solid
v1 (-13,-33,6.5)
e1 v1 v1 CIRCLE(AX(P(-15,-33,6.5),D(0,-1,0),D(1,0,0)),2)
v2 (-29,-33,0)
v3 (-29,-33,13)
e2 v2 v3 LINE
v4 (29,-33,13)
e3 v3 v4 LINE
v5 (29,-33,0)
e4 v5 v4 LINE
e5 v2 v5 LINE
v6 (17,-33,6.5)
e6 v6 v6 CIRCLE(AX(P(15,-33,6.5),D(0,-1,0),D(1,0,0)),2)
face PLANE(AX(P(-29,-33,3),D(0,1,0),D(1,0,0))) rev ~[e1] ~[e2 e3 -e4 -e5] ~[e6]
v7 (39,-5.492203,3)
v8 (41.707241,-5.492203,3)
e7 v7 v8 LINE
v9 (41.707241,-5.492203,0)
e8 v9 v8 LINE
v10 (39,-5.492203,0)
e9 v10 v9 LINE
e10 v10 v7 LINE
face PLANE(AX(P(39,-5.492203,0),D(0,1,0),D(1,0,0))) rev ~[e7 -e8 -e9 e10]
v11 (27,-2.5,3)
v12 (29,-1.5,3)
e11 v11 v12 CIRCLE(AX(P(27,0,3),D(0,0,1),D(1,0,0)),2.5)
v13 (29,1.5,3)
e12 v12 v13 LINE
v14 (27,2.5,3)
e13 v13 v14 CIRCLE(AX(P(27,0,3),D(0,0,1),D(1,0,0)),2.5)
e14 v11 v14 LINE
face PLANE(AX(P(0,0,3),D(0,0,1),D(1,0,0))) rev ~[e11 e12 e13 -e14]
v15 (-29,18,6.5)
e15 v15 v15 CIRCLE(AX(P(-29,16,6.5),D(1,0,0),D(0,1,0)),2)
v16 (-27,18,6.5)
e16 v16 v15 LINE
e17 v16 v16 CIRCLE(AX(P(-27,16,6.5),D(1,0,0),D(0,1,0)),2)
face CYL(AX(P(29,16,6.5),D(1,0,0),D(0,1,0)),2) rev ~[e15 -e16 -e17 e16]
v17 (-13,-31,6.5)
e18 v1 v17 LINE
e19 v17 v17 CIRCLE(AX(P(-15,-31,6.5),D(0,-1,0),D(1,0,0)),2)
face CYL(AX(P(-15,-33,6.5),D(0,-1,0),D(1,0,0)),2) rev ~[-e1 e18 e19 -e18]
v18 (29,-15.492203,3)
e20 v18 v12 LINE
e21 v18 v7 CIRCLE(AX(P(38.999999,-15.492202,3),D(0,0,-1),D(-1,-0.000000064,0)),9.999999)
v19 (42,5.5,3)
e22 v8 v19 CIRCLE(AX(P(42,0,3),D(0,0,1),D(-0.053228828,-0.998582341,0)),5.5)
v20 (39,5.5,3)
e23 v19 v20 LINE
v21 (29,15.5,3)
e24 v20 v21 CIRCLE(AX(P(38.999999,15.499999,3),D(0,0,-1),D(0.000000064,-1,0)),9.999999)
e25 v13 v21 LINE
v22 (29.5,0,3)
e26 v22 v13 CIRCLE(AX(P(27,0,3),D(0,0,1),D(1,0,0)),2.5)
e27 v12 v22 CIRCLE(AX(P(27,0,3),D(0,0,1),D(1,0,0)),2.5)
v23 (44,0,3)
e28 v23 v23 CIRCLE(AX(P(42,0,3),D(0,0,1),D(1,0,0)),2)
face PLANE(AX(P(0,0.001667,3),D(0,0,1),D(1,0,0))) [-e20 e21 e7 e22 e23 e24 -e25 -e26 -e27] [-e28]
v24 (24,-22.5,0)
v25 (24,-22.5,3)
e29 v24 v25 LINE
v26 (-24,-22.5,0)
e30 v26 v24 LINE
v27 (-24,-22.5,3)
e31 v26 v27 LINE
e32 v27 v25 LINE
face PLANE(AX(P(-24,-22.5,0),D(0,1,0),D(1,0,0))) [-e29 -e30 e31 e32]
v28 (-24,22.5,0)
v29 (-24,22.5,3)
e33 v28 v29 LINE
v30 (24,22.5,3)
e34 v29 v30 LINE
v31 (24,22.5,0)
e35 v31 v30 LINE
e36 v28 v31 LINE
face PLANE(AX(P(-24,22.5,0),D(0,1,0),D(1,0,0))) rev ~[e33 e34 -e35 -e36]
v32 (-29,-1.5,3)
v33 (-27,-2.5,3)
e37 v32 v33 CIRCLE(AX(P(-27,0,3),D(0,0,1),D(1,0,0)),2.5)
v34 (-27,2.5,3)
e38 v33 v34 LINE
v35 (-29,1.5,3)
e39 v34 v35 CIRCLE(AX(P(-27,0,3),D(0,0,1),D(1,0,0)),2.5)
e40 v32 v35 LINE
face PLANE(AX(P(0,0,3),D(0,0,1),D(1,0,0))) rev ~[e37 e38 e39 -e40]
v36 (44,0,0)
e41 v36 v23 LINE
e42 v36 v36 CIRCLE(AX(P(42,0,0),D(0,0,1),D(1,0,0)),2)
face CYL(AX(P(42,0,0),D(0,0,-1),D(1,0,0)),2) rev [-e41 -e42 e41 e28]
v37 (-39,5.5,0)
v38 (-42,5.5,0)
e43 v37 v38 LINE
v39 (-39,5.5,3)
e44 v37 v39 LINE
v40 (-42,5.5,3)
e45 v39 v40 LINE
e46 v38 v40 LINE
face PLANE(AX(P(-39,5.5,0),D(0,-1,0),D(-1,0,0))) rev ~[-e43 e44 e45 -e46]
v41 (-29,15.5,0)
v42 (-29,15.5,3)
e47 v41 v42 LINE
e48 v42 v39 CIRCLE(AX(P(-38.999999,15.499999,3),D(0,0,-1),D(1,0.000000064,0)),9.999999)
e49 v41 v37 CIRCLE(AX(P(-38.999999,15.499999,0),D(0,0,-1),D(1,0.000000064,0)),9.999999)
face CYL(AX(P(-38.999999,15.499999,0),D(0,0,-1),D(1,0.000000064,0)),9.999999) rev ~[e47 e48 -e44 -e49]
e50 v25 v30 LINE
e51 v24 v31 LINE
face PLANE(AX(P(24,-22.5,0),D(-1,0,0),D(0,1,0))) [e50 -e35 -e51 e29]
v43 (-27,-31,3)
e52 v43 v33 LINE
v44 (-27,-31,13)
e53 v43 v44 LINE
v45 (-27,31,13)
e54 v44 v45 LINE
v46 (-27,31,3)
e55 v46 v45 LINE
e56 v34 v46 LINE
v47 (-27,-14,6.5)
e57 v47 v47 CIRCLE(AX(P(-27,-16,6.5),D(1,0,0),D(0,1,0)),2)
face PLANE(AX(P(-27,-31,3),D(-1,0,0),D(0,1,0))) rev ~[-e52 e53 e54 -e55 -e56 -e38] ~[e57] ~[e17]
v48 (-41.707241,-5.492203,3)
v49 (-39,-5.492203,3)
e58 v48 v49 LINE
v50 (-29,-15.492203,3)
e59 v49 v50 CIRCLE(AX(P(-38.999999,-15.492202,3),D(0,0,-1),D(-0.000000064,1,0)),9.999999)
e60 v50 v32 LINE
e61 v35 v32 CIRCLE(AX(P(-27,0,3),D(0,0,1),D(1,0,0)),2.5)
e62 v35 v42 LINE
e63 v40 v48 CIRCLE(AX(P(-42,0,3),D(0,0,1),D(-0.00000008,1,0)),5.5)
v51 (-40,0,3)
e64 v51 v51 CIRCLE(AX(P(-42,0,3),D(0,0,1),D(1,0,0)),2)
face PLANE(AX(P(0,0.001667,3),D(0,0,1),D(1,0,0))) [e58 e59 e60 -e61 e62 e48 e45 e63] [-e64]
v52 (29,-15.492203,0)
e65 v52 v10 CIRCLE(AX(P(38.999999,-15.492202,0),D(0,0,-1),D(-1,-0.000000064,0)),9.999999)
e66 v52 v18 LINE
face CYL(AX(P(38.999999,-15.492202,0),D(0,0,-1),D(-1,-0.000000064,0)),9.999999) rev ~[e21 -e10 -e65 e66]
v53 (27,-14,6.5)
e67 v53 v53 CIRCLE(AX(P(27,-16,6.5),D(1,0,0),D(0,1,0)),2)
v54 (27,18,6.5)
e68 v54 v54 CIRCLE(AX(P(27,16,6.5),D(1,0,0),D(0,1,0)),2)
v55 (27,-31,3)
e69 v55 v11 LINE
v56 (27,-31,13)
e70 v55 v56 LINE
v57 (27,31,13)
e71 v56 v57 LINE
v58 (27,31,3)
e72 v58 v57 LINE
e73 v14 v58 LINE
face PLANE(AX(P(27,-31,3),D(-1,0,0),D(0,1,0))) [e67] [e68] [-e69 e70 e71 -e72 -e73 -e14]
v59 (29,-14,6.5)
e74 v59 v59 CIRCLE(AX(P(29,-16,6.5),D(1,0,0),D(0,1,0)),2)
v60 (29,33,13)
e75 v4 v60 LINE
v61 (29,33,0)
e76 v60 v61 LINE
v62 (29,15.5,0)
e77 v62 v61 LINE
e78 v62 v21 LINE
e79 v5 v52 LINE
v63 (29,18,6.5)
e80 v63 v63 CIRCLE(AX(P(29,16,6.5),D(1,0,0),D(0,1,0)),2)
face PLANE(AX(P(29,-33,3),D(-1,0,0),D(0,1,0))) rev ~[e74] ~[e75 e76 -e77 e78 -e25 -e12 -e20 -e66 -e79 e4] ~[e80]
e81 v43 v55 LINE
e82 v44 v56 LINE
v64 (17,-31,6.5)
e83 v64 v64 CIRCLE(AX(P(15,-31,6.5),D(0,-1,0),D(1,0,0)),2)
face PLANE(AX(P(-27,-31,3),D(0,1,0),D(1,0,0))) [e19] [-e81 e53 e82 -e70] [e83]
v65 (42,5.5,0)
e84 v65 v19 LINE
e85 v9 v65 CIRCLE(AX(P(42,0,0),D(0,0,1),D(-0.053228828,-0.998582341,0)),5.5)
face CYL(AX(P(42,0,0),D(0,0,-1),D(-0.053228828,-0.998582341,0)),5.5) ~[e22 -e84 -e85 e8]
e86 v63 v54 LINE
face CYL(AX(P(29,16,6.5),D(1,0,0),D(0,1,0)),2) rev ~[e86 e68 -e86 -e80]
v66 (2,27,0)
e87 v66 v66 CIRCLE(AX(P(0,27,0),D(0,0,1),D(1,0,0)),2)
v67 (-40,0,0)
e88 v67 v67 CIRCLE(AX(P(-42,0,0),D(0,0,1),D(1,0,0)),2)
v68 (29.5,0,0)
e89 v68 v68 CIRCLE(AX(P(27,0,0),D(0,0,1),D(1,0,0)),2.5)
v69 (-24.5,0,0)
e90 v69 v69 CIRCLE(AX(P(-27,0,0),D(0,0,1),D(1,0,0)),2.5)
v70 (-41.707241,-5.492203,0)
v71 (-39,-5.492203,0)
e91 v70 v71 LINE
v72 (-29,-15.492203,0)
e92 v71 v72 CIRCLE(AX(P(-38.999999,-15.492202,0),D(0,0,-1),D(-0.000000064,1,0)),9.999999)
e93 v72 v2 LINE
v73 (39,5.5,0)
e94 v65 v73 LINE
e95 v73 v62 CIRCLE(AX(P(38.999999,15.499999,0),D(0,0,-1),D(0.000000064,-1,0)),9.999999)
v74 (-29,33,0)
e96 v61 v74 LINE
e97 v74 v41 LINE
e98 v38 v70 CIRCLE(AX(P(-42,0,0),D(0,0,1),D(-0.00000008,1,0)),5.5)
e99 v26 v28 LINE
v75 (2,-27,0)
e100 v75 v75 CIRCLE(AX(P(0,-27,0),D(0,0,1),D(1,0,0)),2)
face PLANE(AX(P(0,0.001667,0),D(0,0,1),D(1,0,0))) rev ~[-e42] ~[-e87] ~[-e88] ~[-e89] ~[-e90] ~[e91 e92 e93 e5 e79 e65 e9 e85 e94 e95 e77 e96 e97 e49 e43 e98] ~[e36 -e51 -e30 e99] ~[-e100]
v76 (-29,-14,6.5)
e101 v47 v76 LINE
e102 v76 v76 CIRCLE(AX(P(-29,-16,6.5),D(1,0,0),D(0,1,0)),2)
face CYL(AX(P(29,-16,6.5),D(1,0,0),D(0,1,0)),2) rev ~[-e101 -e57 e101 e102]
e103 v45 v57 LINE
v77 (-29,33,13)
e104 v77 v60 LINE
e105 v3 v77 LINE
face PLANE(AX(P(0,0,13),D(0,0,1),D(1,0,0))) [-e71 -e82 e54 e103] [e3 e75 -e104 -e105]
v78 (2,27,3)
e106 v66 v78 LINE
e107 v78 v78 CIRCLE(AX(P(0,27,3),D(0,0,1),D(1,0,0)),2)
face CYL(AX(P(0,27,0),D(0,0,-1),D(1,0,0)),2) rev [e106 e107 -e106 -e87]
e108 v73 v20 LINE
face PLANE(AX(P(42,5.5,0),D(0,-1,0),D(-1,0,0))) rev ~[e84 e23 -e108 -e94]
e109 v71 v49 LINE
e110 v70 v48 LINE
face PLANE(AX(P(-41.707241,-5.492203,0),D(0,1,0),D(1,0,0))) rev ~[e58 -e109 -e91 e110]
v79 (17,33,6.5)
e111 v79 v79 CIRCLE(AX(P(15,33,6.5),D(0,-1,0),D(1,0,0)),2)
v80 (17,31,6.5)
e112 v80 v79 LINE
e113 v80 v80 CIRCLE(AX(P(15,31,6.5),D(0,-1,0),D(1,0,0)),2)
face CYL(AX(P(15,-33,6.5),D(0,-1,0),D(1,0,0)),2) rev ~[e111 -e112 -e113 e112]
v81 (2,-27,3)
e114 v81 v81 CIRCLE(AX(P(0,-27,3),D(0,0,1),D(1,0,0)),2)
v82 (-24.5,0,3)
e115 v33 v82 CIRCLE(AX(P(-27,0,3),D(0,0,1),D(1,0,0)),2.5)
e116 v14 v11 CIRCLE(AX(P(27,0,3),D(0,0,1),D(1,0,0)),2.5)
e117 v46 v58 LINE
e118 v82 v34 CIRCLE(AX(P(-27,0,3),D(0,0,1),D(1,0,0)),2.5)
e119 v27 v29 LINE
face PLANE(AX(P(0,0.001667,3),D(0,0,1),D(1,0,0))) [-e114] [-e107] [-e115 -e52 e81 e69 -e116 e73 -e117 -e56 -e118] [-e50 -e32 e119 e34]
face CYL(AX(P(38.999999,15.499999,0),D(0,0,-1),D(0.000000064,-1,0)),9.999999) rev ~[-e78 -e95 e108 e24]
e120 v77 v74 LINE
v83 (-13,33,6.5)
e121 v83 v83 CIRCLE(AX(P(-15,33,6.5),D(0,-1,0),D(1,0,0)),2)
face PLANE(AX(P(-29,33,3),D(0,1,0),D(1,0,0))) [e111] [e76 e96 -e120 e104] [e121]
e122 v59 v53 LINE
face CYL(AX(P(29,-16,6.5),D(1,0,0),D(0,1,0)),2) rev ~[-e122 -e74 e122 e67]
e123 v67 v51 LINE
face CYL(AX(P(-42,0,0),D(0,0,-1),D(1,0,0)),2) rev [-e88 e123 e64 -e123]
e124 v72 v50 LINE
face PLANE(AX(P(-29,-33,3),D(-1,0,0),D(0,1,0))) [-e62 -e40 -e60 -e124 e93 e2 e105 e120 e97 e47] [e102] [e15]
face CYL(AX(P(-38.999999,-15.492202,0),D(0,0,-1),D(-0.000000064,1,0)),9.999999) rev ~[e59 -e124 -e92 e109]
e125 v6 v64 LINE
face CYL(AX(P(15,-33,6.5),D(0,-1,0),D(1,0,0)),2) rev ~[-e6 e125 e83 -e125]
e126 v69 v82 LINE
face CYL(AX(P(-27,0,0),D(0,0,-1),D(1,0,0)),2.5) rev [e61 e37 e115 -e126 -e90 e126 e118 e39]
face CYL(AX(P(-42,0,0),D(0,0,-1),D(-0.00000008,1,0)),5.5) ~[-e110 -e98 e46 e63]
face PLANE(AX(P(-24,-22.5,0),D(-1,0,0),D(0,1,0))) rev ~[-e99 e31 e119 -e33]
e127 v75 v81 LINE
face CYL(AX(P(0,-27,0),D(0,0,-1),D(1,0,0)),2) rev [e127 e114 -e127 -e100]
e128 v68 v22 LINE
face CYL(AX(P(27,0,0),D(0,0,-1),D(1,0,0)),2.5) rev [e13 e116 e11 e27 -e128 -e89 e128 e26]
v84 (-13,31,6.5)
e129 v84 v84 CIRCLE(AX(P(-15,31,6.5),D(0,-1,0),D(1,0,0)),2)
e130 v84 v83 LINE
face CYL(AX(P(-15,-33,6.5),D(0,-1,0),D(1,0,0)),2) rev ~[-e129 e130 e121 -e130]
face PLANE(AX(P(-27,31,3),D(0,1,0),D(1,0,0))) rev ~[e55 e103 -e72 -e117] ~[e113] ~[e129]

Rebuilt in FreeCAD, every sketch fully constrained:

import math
import FreeCAD as App
import Part
import Sketcher
Q = App.Units.Quantity

doc = App.newDocument("Part")
body = doc.addObject("PartDesign::Body", "Body")

sketch1 = doc.addObject("Sketcher::SketchObject", "Sketch")
body.addObject(sketch1)
sketch1.AttachmentSupport = (doc.XY_Plane, [""])
sketch1.MapMode = "FlatFace"
sketch1.addGeometry([
    Part.LineSegment(App.Vector(-29, -33, 0), App.Vector(29, -33, 0)),
    Part.LineSegment(App.Vector(29, -33, 0), App.Vector(29, -15.5, 0)),
    Part.ArcOfCircle(Part.Circle(App.Vector(39, -15.5, 0), App.Vector(0, 0, 1), 10), math.radians(90), math.radians(180)),
    Part.LineSegment(App.Vector(39, -5.5, 0), App.Vector(41.7, -5.5, 0)),
    Part.ArcOfCircle(Part.Circle(App.Vector(42, 0, 0), App.Vector(0, 0, 1), 5.5), math.radians(-93), math.radians(90)),
    Part.LineSegment(App.Vector(42, 5.5, 0), App.Vector(39, 5.5, 0)),
    Part.ArcOfCircle(Part.Circle(App.Vector(39, 15.5, 0), App.Vector(0, 0, 1), 10), math.radians(180), math.radians(270)),
    Part.LineSegment(App.Vector(29, 15.5, 0), App.Vector(29, 33, 0)),
    Part.LineSegment(App.Vector(29, 33, 0), App.Vector(-29, 33, 0)),
    Part.LineSegment(App.Vector(-29, 33, 0), App.Vector(-29, 15.5, 0)),
    Part.ArcOfCircle(Part.Circle(App.Vector(-39, 15.5, 0), App.Vector(0, 0, 1), 10), math.radians(-90), math.radians(0)),
    Part.LineSegment(App.Vector(-39, 5.5, 0), App.Vector(-42, 5.5, 0)),
    Part.ArcOfCircle(Part.Circle(App.Vector(-42, 0, 0), App.Vector(0, 0, 1), 5.5), math.radians(90), math.radians(273)),
    Part.LineSegment(App.Vector(-41.7, -5.5, 0), App.Vector(-39, -5.5, 0)),
    Part.ArcOfCircle(Part.Circle(App.Vector(-39, -15.5, 0), App.Vector(0, 0, 1), 10), math.radians(0), math.radians(90)),
    Part.LineSegment(App.Vector(-29, -15.5, 0), App.Vector(-29, -33, 0)),
    Part.Circle(App.Vector(0, -27, 0), App.Vector(0, 0, 1), 2),
    Part.Circle(App.Vector(-42, 0, 0), App.Vector(0, 0, 1), 2),
    Part.Circle(App.Vector(-27, 0, 0), App.Vector(0, 0, 1), 2.5),
    Part.LineSegment(App.Vector(24, -22.5, 0), App.Vector(-24, -22.5, 0)),
    Part.LineSegment(App.Vector(-24, -22.5, 0), App.Vector(-24, 22.5, 0)),
    Part.LineSegment(App.Vector(-24, 22.5, 0), App.Vector(24, 22.5, 0)),
    Part.LineSegment(App.Vector(24, 22.5, 0), App.Vector(24, -22.5, 0)),
    Part.Circle(App.Vector(27, 0, 0), App.Vector(0, 0, 1), 2.5),
    Part.Circle(App.Vector(42, 0, 0), App.Vector(0, 0, 1), 2),
    Part.Circle(App.Vector(0, 27, 0), App.Vector(0, 0, 1), 2),
], False)
sketch1.addConstraint([
    Sketcher.Constraint("Coincident", 0, 2, 1, 1),
    Sketcher.Constraint("Tangent", 1, 2, 2, 2),
    Sketcher.Constraint("Tangent", 2, 1, 3, 1),
    Sketcher.Constraint("Coincident", 3, 2, 4, 1),
    Sketcher.Constraint("Tangent", 4, 2, 5, 1),
    Sketcher.Constraint("Tangent", 5, 2, 6, 2),
    Sketcher.Constraint("Tangent", 6, 1, 7, 1),
    Sketcher.Constraint("Coincident", 7, 2, 8, 1),
    Sketcher.Constraint("Coincident", 8, 2, 9, 1),
    Sketcher.Constraint("Tangent", 9, 2, 10, 2),
    Sketcher.Constraint("Tangent", 10, 1, 11, 1),
    Sketcher.Constraint("Tangent", 11, 2, 12, 1),
    Sketcher.Constraint("Coincident", 12, 2, 13, 1),
    Sketcher.Constraint("Tangent", 13, 2, 14, 2),
    Sketcher.Constraint("Tangent", 14, 1, 15, 1),
    Sketcher.Constraint("Coincident", 15, 2, 0, 1),
    Sketcher.Constraint("Coincident", 19, 2, 20, 1),
    Sketcher.Constraint("Coincident", 20, 2, 21, 1),
    Sketcher.Constraint("Coincident", 21, 2, 22, 1),
    Sketcher.Constraint("Coincident", 22, 2, 19, 1),
    Sketcher.Constraint("Horizontal", 0),
    Sketcher.Constraint("Vertical", 1),
    Sketcher.Constraint("Horizontal", 3),
    Sketcher.Constraint("Horizontal", 5),
    Sketcher.Constraint("Vertical", 7),
    Sketcher.Constraint("Horizontal", 8),
    Sketcher.Constraint("Vertical", 9),
    Sketcher.Constraint("Horizontal", 11),
    Sketcher.Constraint("Horizontal", 13),
    Sketcher.Constraint("Vertical", 15),
    Sketcher.Constraint("Horizontal", 19),
    Sketcher.Constraint("Vertical", 20),
    Sketcher.Constraint("Horizontal", 21),
    Sketcher.Constraint("Vertical", 22),
    Sketcher.Constraint("Coincident", 17, 3, 12, 3),
    Sketcher.Constraint("Coincident", 24, 3, 4, 3),
    Sketcher.Constraint("Equal", 2, 6),
    Sketcher.Constraint("Equal", 6, 10),
    Sketcher.Constraint("Equal", 4, 12),
    Sketcher.Constraint("Equal", 10, 14),
    Sketcher.Constraint("Equal", 16, 17),
    Sketcher.Constraint("Equal", 18, 23),
    Sketcher.Constraint("Equal", 17, 24),
    Sketcher.Constraint("Equal", 24, 25),
    Sketcher.Constraint("Symmetric", 4, 3, 12, 3, -1, 1),
    Sketcher.Constraint("Symmetric", 18, 3, 23, 3, -1, 1),
    Sketcher.Constraint("Symmetric", 16, 3, 25, 3, -1, 1),
    Sketcher.Constraint("Symmetric", 0, 2, 8, 2, -1, 1),
    Sketcher.Constraint("Symmetric", 19, 2, 21, 2, -1, 1),
    Sketcher.Constraint("Symmetric", 6, 3, 10, 3, -2),
    Sketcher.Constraint("Symmetric", 2, 3, 14, 3, -2),
    Sketcher.Constraint("PointOnObject", 16, 3, -2),
    Sketcher.Constraint("PointOnObject", 18, 3, -1),
    Sketcher.Constraint("Diameter", 16, Q("4 mm")),
    Sketcher.Constraint("Diameter", 18, Q("5 mm")),
    Sketcher.Constraint("Radius", 2, Q("9.999999 mm")),
    Sketcher.Constraint("Radius", 4, Q("5.5 mm")),
    Sketcher.Constraint("DistanceX", 0, 1, 0, 2, Q("58 mm")),
    Sketcher.Constraint("DistanceX", 5, 2, 5, 1, Q("3 mm")),
    Sketcher.Constraint("DistanceX", 19, 2, 19, 1, Q("48 mm")),
    Sketcher.Constraint("DistanceY", 20, 1, 20, 2, Q("45 mm")),
    Sketcher.Constraint("DistanceY", 7, 1, 7, 2, Q("17.5 mm")),
    Sketcher.Constraint("DistanceY", 16, 3, -1, 1, Q("27 mm")),
    Sketcher.Constraint("DistanceX", 18, 3, -1, 1, Q("27 mm")),
    Sketcher.Constraint("DistanceX", 3, 1, 3, 2, Q("2.707241 mm")),
])
pad1 = doc.addObject("PartDesign::Pad", "Pad")
body.addObject(pad1)
pad1.Profile = sketch1
pad1.Length = 3

sketch2 = doc.addObject("Sketcher::SketchObject", "Sketch001")
body.addObject(sketch2)
sketch2.AttachmentSupport = (doc.XY_Plane, [""])
sketch2.MapMode = "FlatFace"
sketch2.AttachmentOffset = App.Placement(App.Vector(0, 0, 3), App.Rotation())
sketch2.addGeometry([
    Part.LineSegment(App.Vector(-29, 33, 0), App.Vector(-29, -33, 0)),
    Part.LineSegment(App.Vector(-29, -33, 0), App.Vector(29, -33, 0)),
    Part.LineSegment(App.Vector(29, -33, 0), App.Vector(29, 33, 0)),
    Part.LineSegment(App.Vector(29, 33, 0), App.Vector(-29, 33, 0)),
    Part.LineSegment(App.Vector(27, -31, 0), App.Vector(-27, -31, 0)),
    Part.LineSegment(App.Vector(-27, -31, 0), App.Vector(-27, 31, 0)),
    Part.LineSegment(App.Vector(-27, 31, 0), App.Vector(27, 31, 0)),
    Part.LineSegment(App.Vector(27, 31, 0), App.Vector(27, -31, 0)),
], False)
sketch2.addConstraint([
    Sketcher.Constraint("Coincident", 0, 2, 1, 1),
    Sketcher.Constraint("Coincident", 1, 2, 2, 1),
    Sketcher.Constraint("Coincident", 2, 2, 3, 1),
    Sketcher.Constraint("Coincident", 3, 2, 0, 1),
    Sketcher.Constraint("Coincident", 4, 2, 5, 1),
    Sketcher.Constraint("Coincident", 5, 2, 6, 1),
    Sketcher.Constraint("Coincident", 6, 2, 7, 1),
    Sketcher.Constraint("Coincident", 7, 2, 4, 1),
    Sketcher.Constraint("Vertical", 0),
    Sketcher.Constraint("Horizontal", 1),
    Sketcher.Constraint("Vertical", 2),
    Sketcher.Constraint("Horizontal", 3),
    Sketcher.Constraint("Horizontal", 4),
    Sketcher.Constraint("Vertical", 5),
    Sketcher.Constraint("Horizontal", 6),
    Sketcher.Constraint("Vertical", 7),
    Sketcher.Constraint("Symmetric", 0, 2, 2, 2, -1, 1),
    Sketcher.Constraint("Symmetric", 4, 2, 6, 2, -1, 1),
    Sketcher.Constraint("DistanceX", 1, 1, 1, 2, Q("58 mm")),
    Sketcher.Constraint("DistanceX", 4, 2, 4, 1, Q("54 mm")),
    Sketcher.Constraint("DistanceY", 0, 2, 0, 1, Q("66 mm")),
    Sketcher.Constraint("DistanceY", 5, 1, 5, 2, Q("62 mm")),
])
pad2 = doc.addObject("PartDesign::Pad", "Pad001")
body.addObject(pad2)
pad2.Profile = sketch2
pad2.Length = 10

sketch3 = doc.addObject("Sketcher::SketchObject", "Sketch002")
body.addObject(sketch3)
sketch3.AttachmentSupport = (doc.XZ_Plane, [""])
sketch3.MapMode = "FlatFace"
sketch3.AttachmentOffset = App.Placement(App.Vector(0, 0, 33), App.Rotation())
sketch3.addGeometry([
    Part.Circle(App.Vector(-15, 6.5, 0), App.Vector(0, 0, 1), 2),
    Part.Circle(App.Vector(15, 6.5, 0), App.Vector(0, 0, 1), 2),
], False)
sketch3.addConstraint([
    Sketcher.Constraint("Equal", 0, 1),
    Sketcher.Constraint("Symmetric", 0, 3, 1, 3, -2),
    Sketcher.Constraint("Diameter", 0, Q("4 mm")),
    Sketcher.Constraint("DistanceX", 0, 3, -1, 1, Q("15 mm")),
    Sketcher.Constraint("DistanceY", -1, 1, 0, 3, Q("6.5 mm")),
])
pocket1 = doc.addObject("PartDesign::Pocket", "Pocket")
body.addObject(pocket1)
pocket1.Profile = sketch3
pocket1.Length = 150

sketch4 = doc.addObject("Sketcher::SketchObject", "Sketch003")
body.addObject(sketch4)
sketch4.AttachmentSupport = (doc.YZ_Plane, [""])
sketch4.MapMode = "FlatFace"
sketch4.AttachmentOffset = App.Placement(App.Vector(0, 0, 29), App.Rotation())
sketch4.addGeometry([
    Part.Circle(App.Vector(-16, 6.5, 0), App.Vector(0, 0, 1), 2),
    Part.Circle(App.Vector(16, 6.5, 0), App.Vector(0, 0, 1), 2),
], False)
sketch4.addConstraint([
    Sketcher.Constraint("Equal", 0, 1),
    Sketcher.Constraint("Symmetric", 0, 3, 1, 3, -2),
    Sketcher.Constraint("Diameter", 0, Q("4 mm")),
    Sketcher.Constraint("DistanceX", 0, 3, -1, 1, Q("16 mm")),
    Sketcher.Constraint("DistanceY", -1, 1, 0, 3, Q("6.5 mm")),
])
pocket2 = doc.addObject("PartDesign::Pocket", "Pocket001")
body.addObject(pocket2)
pocket2.Profile = sketch4
pocket2.Length = 150

doc.recompute()
